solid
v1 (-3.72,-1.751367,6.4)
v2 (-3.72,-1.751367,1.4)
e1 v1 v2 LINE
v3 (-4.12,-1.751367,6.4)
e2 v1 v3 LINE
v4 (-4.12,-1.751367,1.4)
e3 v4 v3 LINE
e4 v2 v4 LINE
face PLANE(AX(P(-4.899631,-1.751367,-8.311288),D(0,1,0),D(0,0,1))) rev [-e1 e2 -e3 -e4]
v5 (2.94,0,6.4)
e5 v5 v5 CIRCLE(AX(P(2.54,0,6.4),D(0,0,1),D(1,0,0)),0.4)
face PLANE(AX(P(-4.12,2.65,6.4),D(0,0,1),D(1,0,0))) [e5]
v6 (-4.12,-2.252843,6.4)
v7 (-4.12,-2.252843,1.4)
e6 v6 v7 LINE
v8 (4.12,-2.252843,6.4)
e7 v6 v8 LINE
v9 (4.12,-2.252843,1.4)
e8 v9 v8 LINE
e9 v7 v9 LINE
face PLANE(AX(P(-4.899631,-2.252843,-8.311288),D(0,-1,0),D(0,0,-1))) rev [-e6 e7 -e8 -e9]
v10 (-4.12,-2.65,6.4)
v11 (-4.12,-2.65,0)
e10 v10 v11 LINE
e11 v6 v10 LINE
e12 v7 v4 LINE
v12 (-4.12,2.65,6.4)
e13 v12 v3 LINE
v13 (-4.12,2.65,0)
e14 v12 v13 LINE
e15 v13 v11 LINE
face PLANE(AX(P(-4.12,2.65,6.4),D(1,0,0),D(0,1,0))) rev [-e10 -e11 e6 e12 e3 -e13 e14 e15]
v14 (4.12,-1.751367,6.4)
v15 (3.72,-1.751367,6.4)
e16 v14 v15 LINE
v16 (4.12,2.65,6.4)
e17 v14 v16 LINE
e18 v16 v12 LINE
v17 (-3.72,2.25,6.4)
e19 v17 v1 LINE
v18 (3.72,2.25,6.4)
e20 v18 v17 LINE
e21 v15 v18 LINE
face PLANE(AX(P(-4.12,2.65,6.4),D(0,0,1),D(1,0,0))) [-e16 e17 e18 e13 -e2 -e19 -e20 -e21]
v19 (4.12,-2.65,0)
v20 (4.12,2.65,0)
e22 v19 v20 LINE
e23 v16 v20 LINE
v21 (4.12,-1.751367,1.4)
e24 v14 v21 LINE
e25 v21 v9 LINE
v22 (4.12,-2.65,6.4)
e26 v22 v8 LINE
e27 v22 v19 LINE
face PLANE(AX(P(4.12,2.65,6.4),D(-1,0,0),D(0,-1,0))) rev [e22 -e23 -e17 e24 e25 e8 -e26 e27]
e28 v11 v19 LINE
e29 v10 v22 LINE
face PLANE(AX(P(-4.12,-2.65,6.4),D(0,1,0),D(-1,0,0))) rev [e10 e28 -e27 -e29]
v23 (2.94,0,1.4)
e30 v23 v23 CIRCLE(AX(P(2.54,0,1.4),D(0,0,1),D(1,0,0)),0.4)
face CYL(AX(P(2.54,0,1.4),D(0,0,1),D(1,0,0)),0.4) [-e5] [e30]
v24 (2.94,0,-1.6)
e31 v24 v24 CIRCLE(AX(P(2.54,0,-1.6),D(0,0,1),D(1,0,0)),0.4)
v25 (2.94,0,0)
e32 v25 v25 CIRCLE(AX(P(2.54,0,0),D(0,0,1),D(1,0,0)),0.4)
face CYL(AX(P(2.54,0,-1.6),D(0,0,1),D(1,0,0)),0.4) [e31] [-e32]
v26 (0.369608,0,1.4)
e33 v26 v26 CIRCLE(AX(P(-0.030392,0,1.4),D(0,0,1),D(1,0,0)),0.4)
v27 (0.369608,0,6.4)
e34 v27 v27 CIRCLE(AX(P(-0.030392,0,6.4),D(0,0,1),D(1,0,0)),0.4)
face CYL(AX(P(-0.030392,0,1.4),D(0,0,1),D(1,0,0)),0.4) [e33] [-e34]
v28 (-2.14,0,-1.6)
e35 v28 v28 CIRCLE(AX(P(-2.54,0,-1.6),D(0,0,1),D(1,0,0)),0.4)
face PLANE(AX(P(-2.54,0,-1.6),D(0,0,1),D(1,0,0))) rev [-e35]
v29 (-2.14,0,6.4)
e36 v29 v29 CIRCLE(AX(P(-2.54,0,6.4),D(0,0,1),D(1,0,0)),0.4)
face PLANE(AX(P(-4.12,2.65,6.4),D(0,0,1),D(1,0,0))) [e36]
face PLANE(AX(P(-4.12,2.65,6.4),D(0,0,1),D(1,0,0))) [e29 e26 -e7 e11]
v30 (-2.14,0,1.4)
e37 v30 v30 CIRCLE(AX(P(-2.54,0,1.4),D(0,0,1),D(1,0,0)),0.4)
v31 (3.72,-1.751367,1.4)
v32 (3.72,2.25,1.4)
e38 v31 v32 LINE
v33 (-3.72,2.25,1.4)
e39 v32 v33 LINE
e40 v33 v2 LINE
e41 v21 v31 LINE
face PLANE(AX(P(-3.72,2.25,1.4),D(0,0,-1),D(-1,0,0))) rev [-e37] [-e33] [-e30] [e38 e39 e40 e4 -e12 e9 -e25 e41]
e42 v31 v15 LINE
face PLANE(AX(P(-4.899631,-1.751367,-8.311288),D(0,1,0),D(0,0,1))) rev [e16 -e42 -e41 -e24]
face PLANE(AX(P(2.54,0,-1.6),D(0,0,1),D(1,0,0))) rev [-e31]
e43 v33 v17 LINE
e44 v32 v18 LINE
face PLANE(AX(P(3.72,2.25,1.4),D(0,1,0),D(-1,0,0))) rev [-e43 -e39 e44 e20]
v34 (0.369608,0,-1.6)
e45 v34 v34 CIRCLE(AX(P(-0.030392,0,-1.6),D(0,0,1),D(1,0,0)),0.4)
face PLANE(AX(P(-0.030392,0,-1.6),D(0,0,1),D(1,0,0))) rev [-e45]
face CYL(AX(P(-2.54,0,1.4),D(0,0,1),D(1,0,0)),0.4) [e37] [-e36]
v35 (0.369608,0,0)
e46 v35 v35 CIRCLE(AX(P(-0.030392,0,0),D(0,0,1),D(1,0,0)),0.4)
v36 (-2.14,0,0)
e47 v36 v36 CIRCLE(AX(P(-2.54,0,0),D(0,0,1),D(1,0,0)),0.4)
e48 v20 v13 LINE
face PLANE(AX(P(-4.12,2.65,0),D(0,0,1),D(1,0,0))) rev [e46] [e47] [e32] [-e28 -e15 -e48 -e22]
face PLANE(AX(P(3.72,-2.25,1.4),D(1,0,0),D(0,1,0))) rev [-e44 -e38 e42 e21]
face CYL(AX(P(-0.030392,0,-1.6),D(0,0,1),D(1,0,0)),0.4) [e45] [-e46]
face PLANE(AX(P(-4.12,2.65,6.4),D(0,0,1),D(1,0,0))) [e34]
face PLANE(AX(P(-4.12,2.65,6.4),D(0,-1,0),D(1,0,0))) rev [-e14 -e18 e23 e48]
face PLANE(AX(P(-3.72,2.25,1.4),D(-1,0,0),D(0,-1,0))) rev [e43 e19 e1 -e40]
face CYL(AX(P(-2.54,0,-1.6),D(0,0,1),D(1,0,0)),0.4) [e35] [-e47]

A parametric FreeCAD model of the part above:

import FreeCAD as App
import Part
import Sketcher
Q = App.Units.Quantity


def add_polygon(sketch, points):
    """Adds a closed chain of lines whose ends are joined by coincident constraints."""
    first, n = sketch.GeometryCount, len(points)
    for a, b in zip(points, points[1:] + points[:1]):
        sketch.addGeometry(Part.LineSegment(App.Vector(*a, 0), App.Vector(*b, 0)), False)
    for i in range(n):
        sketch.addConstraint(Sketcher.Constraint("Coincident", first + i, 2, first + (i + 1) % n, 1))

doc = App.newDocument("Part")
params = doc.addObject("Spreadsheet::Sheet", "Params")
for row, (alias, value) in enumerate([
    ("sketch1_height", "5.3 mm"),
    ("sketch1_width", "8.24 mm"),
    ("pad1_length", "6.4 mm"),
    ("sketch2_diameter", "0.8 mm"),
    ("sketch2_height", "4.5 mm"),
    ("sketch2_width", "7.44 mm"),
    ("pocket1_length", "5 mm"),
    ("pocket2_length", "5 mm"),
    ("sketch4_diameter", "0.8 mm"),
    ("pad2_length", "8 mm"),
], start=1):
    params.set(f"A{row}", alias)
    params.set(f"B{row}", "=" + value)
    params.setAlias(f"B{row}", alias)

body = doc.addObject("PartDesign::Body", "Body")

# Sketch on XY plane
sketch1 = body.newObject("Sketcher::SketchObject", "Sketch")
sketch1.AttachmentSupport = (doc.getObject("XY_Plane"), [""])
sketch1.MapMode = "FlatFace"
add_polygon(sketch1, [(-4.12, 2.65), (-4.12, -2.65), (4.12, -2.65), (4.12, 2.65)])  # lines 0-3
sketch1.addConstraint([
    Sketcher.Constraint("Vertical", 0),
    Sketcher.Constraint("Horizontal", 1),
    Sketcher.Constraint("Vertical", 2),
    Sketcher.Constraint("Horizontal", 3),
    Sketcher.Constraint("Symmetric", 0, 2, 2, 2, -1, 1),
    Sketcher.Constraint("DistanceY", 0, 2, 0, 1, Q("5.3 mm")),
    Sketcher.Constraint("DistanceX", 1, 1, 1, 2, Q("8.24 mm")),
])
sketch1.setExpression("Constraints[9]", "Params.sketch1_height")
sketch1.setExpression("Constraints[10]", "Params.sketch1_width")
pad1 = body.newObject("PartDesign::Pad", "Pad")
pad1.Profile = sketch1
pad1.setExpression("Length", "Params.pad1_length")

# Sketch on XY plane
sketch2 = body.newObject("Sketcher::SketchObject", "Sketch001")
sketch2.AttachmentSupport = (doc.getObject("XY_Plane"), [""])
sketch2.MapMode = "FlatFace"
sketch2.AttachmentOffset = App.Placement(App.Vector(0, 0, 6.4), App.Rotation())
add_polygon(sketch2, [(-3.72, 2.25), (-3.72, -2.25), (3.72, -2.25), (3.72, 2.25)])  # lines 0-3
sketch2.addGeometry(Part.Circle(App.Vector(-2.54, 0, 0), App.Vector(0, 0, 1), 0.4), False)  # 4
sketch2.addGeometry(Part.Circle(App.Vector(-0.030392, 0, 0), App.Vector(0, 0, 1), 0.4), False)  # 5
sketch2.addGeometry(Part.Circle(App.Vector(2.54, 0, 0), App.Vector(0, 0, 1), 0.4), False)  # 6
sketch2.addConstraint([
    Sketcher.Constraint("Vertical", 0),
    Sketcher.Constraint("Horizontal", 1),
    Sketcher.Constraint("Vertical", 2),
    Sketcher.Constraint("Horizontal", 3),
    Sketcher.Constraint("Equal", 4, 5),
    Sketcher.Constraint("Equal", 5, 6),
    Sketcher.Constraint("Symmetric", 4, 3, 6, 3, -1, 1),
    Sketcher.Constraint("Symmetric", 0, 2, 2, 2, -1, 1),
    Sketcher.Constraint("PointOnObject", 4, 3, -1),
    Sketcher.Constraint("PointOnObject", 5, 3, -1),
    Sketcher.Constraint("Diameter", 4, Q("0.8 mm")),
    Sketcher.Constraint("DistanceY", 0, 2, 0, 1, Q("4.5 mm")),
    Sketcher.Constraint("DistanceX", 1, 1, 1, 2, Q("7.44 mm")),
    Sketcher.Constraint("DistanceX", 4, 3, -1, 1, Q("2.54 mm")),
    Sketcher.Constraint("DistanceX", 5, 3, -1, 1, Q("0.030392 mm")),
])
sketch2.setExpression("Constraints[14]", "Params.sketch2_diameter")
sketch2.setExpression("Constraints[15]", "Params.sketch2_height")
sketch2.setExpression("Constraints[16]", "Params.sketch2_width")
pocket1 = body.newObject("PartDesign::Pocket", "Pocket")
pocket1.Profile = sketch2
pocket1.setExpression("Length", "Params.pocket1_length")

# Sketch on XY plane
sketch3 = body.newObject("Sketcher::SketchObject", "Sketch002")
sketch3.AttachmentSupport = (doc.getObject("XY_Plane"), [""])
sketch3.MapMode = "FlatFace"
sketch3.AttachmentOffset = App.Placement(App.Vector(0, 0, 6.4), App.Rotation())
add_polygon(sketch3, [(-4.899631, -1.751367), (-4.899631, -2.252843), (4.7987, -2.252843), (4.7987, -1.751367)])  # lines 0-3
sketch3.addConstraint([
    Sketcher.Constraint("Vertical", 0),
    Sketcher.Constraint("Horizontal", 1),
    Sketcher.Constraint("Vertical", 2),
    Sketcher.Constraint("Horizontal", 3),
    Sketcher.Constraint("DistanceX", 1, 1, 1, 2, Q("9.698331 mm")),
    Sketcher.Constraint("DistanceX", -1, 1, 1, 2, Q("4.7987 mm")),
    Sketcher.Constraint("DistanceY", 0, 2, 0, 1, Q("0.501476 mm")),
    Sketcher.Constraint("DistanceY", 0, 2, -1, 1, Q("2.252843 mm")),
])
pocket2 = body.newObject("PartDesign::Pocket", "Pocket001")
pocket2.Profile = sketch3
pocket2.setExpression("Length", "Params.pocket2_length")

# Sketch on XY plane
sketch4 = body.newObject("Sketcher::SketchObject", "Sketch003")
sketch4.AttachmentSupport = (doc.getObject("XY_Plane"), [""])
sketch4.MapMode = "FlatFace"
sketch4.AttachmentOffset = App.Placement(App.Vector(0, 0, 6.4), App.Rotation())
sketch4.addGeometry([
    Part.Circle(App.Vector(-2.54, 0, 0), App.Vector(0, 0, 1), 0.4),
    Part.Circle(App.Vector(2.54, 0, 0), App.Vector(0, 0, 1), 0.4),
    Part.Circle(App.Vector(-0.030392, 0, 0), App.Vector(0, 0, 1), 0.4),
], False)
sketch4.addConstraint([
    Sketcher.Constraint("Equal", 0, 1),
    Sketcher.Constraint("Equal", 1, 2),
    Sketcher.Constraint("Symmetric", 0, 3, 1, 3, -1, 1),
    Sketcher.Constraint("PointOnObject", 0, 3, -1),
    Sketcher.Constraint("PointOnObject", 2, 3, -1),
    Sketcher.Constraint("Diameter", 0, Q("0.8 mm")),
    Sketcher.Constraint("DistanceX", 0, 3, -1, 1, Q("2.54 mm")),
    Sketcher.Constraint("DistanceX", 2, 3, -1, 1, Q("0.030392 mm")),
])
sketch4.setExpression("Constraints[5]", "Params.sketch4_diameter")
pad2 = body.newObject("PartDesign::Pad", "Pad001")
pad2.Profile = sketch4
pad2.setExpression("Length", "Params.pad2_length")
pad2.Reversed = True

doc.recompute()
